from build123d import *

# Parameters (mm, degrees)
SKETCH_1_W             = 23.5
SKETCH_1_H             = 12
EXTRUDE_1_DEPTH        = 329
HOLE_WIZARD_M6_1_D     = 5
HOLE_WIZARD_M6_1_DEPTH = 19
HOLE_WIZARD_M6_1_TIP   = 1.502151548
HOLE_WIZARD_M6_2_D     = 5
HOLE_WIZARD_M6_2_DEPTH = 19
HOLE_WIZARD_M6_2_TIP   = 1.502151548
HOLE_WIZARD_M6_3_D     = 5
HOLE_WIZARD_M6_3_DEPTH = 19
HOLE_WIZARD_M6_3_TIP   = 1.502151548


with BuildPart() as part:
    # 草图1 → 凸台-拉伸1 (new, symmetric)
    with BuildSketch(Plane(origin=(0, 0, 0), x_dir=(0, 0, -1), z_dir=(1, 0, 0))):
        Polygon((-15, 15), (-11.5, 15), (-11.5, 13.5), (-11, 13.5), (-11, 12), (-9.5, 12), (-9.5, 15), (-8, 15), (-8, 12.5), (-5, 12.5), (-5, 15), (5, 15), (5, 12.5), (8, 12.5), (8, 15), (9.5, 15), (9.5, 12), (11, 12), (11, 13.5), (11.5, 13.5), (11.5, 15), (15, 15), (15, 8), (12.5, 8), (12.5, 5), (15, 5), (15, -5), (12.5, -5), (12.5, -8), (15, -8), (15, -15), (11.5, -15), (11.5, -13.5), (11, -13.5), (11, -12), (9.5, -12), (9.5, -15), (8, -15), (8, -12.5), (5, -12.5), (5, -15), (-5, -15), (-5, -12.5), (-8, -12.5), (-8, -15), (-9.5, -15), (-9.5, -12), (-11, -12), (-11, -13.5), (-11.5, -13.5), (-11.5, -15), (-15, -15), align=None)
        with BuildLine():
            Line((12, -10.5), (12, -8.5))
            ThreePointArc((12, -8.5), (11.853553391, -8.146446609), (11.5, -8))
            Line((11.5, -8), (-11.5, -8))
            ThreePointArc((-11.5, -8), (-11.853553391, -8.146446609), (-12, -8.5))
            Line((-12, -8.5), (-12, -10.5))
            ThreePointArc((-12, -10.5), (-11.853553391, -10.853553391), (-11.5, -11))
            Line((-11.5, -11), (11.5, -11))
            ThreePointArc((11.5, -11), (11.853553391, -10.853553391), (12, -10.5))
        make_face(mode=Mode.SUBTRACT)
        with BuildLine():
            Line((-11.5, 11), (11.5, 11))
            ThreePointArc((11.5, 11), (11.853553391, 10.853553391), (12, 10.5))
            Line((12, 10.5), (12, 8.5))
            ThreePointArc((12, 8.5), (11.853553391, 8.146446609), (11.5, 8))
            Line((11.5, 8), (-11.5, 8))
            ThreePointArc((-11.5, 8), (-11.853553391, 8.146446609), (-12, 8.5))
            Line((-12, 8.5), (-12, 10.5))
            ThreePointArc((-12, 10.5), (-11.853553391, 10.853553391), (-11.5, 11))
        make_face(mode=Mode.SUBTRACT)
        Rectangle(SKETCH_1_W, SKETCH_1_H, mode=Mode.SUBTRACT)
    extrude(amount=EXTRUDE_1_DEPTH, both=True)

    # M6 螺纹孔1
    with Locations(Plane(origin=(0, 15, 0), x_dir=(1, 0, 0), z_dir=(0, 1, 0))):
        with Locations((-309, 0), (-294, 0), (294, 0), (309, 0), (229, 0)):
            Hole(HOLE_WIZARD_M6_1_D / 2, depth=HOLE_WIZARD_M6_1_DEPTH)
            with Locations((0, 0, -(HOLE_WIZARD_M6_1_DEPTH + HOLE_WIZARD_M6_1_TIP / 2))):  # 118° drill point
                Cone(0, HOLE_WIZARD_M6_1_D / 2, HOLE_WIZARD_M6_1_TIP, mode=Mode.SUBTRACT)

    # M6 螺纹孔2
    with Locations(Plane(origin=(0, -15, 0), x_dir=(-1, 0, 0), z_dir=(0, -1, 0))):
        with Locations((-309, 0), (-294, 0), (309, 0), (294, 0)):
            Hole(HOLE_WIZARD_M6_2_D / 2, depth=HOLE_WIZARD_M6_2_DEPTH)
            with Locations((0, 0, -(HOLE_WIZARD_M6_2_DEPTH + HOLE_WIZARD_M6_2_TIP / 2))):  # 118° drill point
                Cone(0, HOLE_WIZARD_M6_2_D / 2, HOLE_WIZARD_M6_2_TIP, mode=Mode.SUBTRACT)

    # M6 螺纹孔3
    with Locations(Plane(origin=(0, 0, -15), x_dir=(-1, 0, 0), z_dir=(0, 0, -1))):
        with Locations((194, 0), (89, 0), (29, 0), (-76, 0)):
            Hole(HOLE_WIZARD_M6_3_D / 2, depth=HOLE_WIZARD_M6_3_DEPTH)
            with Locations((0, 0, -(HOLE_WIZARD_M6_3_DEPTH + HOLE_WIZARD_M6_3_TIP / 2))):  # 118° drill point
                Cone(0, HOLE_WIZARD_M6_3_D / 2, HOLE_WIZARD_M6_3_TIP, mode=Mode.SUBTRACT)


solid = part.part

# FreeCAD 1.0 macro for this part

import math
import FreeCAD as App
import Part
import Sketcher
from FreeCAD import Vector
Q = App.Units.Quantity


def add_polygon(sketch, points):
    """Adds a closed chain of lines whose ends are joined by coincident constraints."""
    first, n = sketch.GeometryCount, len(points)
    for a, b in zip(points, points[1:] + points[:1]):
        sketch.addGeometry(Part.LineSegment(App.Vector(*a, 0), App.Vector(*b, 0)), False)
    for i in range(n):
        sketch.addConstraint(Sketcher.Constraint("Coincident", first + i, 2, first + (i + 1) % n, 1))

doc = App.newDocument("Part")
body = doc.addObject("PartDesign::Body", "Body")

sketch1 = body.newObject("Sketcher::SketchObject", "Sketch")
sketch1.AttachmentSupport = (doc.getObject("YZ_Plane"), [""])
sketch1.MapMode = "FlatFace"
add_polygon(sketch1, [(15, 11.5), (15, 15), (-15, 15), (-15, 11.5), (-13.5, 11.5), (-13.5, 11), (-12, 11), (-12, 9.5), (-15, 9.5), (-15, 8), (-12.5, 8), (-12.5, 5), (-15, 5), (-15, -5), (-12.5, -5), (-12.5, -8), (-15, -8), (-15, -9.5), (-12, -9.5), (-12, -11), (-13.5, -11), (-13.5, -11.5), (-15, -11.5), (-15, -15), (-8, -15), (-8, -12.5), (-5, -12.5), (-5, -15), (5, -15), (5, -12.5), (8, -12.5), (8, -15), (15, -15), (15, -11.5), (13.5, -11.5), (13.5, -11), (12, -11), (12, -9.5), (15, -9.5), (15, -8), (12.5, -8), (12.5, -5), (15, -5), (15, 5), (12.5, 5), (12.5, 8), (15, 8), (15, 9.5), (12, 9.5), (12, 11), (13.5, 11), (13.5, 11.5)])
sketch1.addGeometry(Part.ArcOfCircle(Part.Circle(Vector(-10.5, -11.5, 0), Vector(0, 0, 1), 0.5), math.radians(180), math.radians(270)), False)
sketch1.addGeometry(Part.LineSegment(Vector(-11, -11.5, 0), Vector(-11, 11.5, 0)), False)
sketch1.addGeometry(Part.ArcOfCircle(Part.Circle(Vector(-10.5, 11.5, 0), Vector(0, 0, 1), 0.5), math.radians(90), math.radians(180)), False)
sketch1.addGeometry(Part.LineSegment(Vector(-10.5, 12, 0), Vector(-8.5, 12, 0)), False)
sketch1.addGeometry(Part.ArcOfCircle(Part.Circle(Vector(-8.5, 11.5, 0), Vector(0, 0, 1), 0.5), math.radians(0), math.radians(90)), False)
sketch1.addGeometry(Part.LineSegment(Vector(-8, 11.5, 0), Vector(-8, -11.5, 0)), False)
sketch1.addGeometry(Part.ArcOfCircle(Part.Circle(Vector(-8.5, -11.5, 0), Vector(0, 0, 1), 0.5), math.radians(-90), math.radians(0)), False)
sketch1.addGeometry(Part.LineSegment(Vector(-8.5, -12, 0), Vector(-10.5, -12, 0)), False)
add_polygon(sketch1, [(-6, 11.75), (6, 11.75), (6, -11.75), (-6, -11.75)])
sketch1.addGeometry(Part.LineSegment(Vector(11, 11.5, 0), Vector(11, -11.5, 0)), False)
sketch1.addGeometry(Part.ArcOfCircle(Part.Circle(Vector(10.5, -11.5, 0), Vector(0, 0, 1), 0.5), math.radians(-90), math.radians(0)), False)
sketch1.addGeometry(Part.LineSegment(Vector(10.5, -12, 0), Vector(8.5, -12, 0)), False)
sketch1.addGeometry(Part.ArcOfCircle(Part.Circle(Vector(8.5, -11.5, 0), Vector(0, 0, 1), 0.5), math.radians(180), math.radians(270)), False)
sketch1.addGeometry(Part.LineSegment(Vector(8, -11.5, 0), Vector(8, 11.5, 0)), False)
sketch1.addGeometry(Part.ArcOfCircle(Part.Circle(Vector(8.5, 11.5, 0), Vector(0, 0, 1), 0.5), math.radians(90), math.radians(180)), False)
sketch1.addGeometry(Part.LineSegment(Vector(8.5, 12, 0), Vector(10.5, 12, 0)), False)
sketch1.addGeometry(Part.ArcOfCircle(Part.Circle(Vector(10.5, 11.5, 0), Vector(0, 0, 1), 0.5), math.radians(0), math.radians(90)), False)
sketch1.addConstraint([
    Sketcher.Constraint("Tangent", 52, 1, 53, 1),
    Sketcher.Constraint("Tangent", 53, 2, 54, 2),
    Sketcher.Constraint("Tangent", 54, 1, 55, 1),
    Sketcher.Constraint("Tangent", 55, 2, 56, 2),
    Sketcher.Constraint("Tangent", 56, 1, 57, 1),
    Sketcher.Constraint("Tangent", 57, 2, 58, 2),
    Sketcher.Constraint("Tangent", 58, 1, 59, 1),
    Sketcher.Constraint("Tangent", 59, 2, 52, 2),
    Sketcher.Constraint("Tangent", 64, 2, 65, 2),
    Sketcher.Constraint("Tangent", 65, 1, 66, 1),
    Sketcher.Constraint("Tangent", 66, 2, 67, 2),
    Sketcher.Constraint("Tangent", 67, 1, 68, 1),
    Sketcher.Constraint("Tangent", 68, 2, 69, 2),
    Sketcher.Constraint("Tangent", 69, 1, 70, 1),
    Sketcher.Constraint("Tangent", 70, 2, 71, 2),
    Sketcher.Constraint("Tangent", 71, 1, 64, 1),
    Sketcher.Constraint("Vertical", 0),
    Sketcher.Constraint("Horizontal", 1),
    Sketcher.Constraint("Vertical", 2),
    Sketcher.Constraint("Horizontal", 3),
    Sketcher.Constraint("Vertical", 4),
    Sketcher.Constraint("Horizontal", 5),
    Sketcher.Constraint("Vertical", 6),
    Sketcher.Constraint("Horizontal", 7),
    Sketcher.Constraint("Vertical", 8),
    Sketcher.Constraint("Horizontal", 9),
    Sketcher.Constraint("Vertical", 10),
    Sketcher.Constraint("Horizontal", 11),
    Sketcher.Constraint("Vertical", 12),
    Sketcher.Constraint("Horizontal", 13),
    Sketcher.Constraint("Vertical", 14),
    Sketcher.Constraint("Horizontal", 15),
    Sketcher.Constraint("Vertical", 16),
    Sketcher.Constraint("Horizontal", 17),
    Sketcher.Constraint("Vertical", 18),
    Sketcher.Constraint("Horizontal", 19),
    Sketcher.Constraint("Vertical", 20),
    Sketcher.Constraint("Horizontal", 21),
    Sketcher.Constraint("Vertical", 22),
    Sketcher.Constraint("Horizontal", 23),
    Sketcher.Constraint("Vertical", 24),
    Sketcher.Constraint("Horizontal", 25),
    Sketcher.Constraint("Vertical", 26),
    Sketcher.Constraint("Horizontal", 27),
    Sketcher.Constraint("Vertical", 28),
    Sketcher.Constraint("Horizontal", 29),
    Sketcher.Constraint("Vertical", 30),
    Sketcher.Constraint("Horizontal", 31),
    Sketcher.Constraint("Vertical", 32),
    Sketcher.Constraint("Horizontal", 33),
    Sketcher.Constraint("Vertical", 34),
    Sketcher.Constraint("Horizontal", 35),
    Sketcher.Constraint("Vertical", 36),
    Sketcher.Constraint("Horizontal", 37),
    Sketcher.Constraint("Vertical", 38),
    Sketcher.Constraint("Horizontal", 39),
    Sketcher.Constraint("Vertical", 40),
    Sketcher.Constraint("Horizontal", 41),
    Sketcher.Constraint("Vertical", 42),
    Sketcher.Constraint("Horizontal", 43),
    Sketcher.Constraint("Vertical", 44),
    Sketcher.Constraint("Horizontal", 45),
    Sketcher.Constraint("Vertical", 46),
    Sketcher.Constraint("Horizontal", 47),
    Sketcher.Constraint("Vertical", 48),
    Sketcher.Constraint("Horizontal", 49),
    Sketcher.Constraint("Vertical", 50),
    Sketcher.Constraint("Horizontal", 51),
    Sketcher.Constraint("Vertical", 53),
    Sketcher.Constraint("Horizontal", 55),
    Sketcher.Constraint("Vertical", 57),
    Sketcher.Constraint("Horizontal", 59),
    Sketcher.Constraint("Horizontal", 60),
    Sketcher.Constraint("Vertical", 61),
    Sketcher.Constraint("Horizontal", 62),
    Sketcher.Constraint("Vertical", 63),
    Sketcher.Constraint("Vertical", 64),
    Sketcher.Constraint("Horizontal", 66),
    Sketcher.Constraint("Vertical", 68),
    Sketcher.Constraint("Horizontal", 70),
    Sketcher.Constraint("Equal", 52, 54),
    Sketcher.Constraint("Equal", 54, 56),
    Sketcher.Constraint("Equal", 56, 58),
    Sketcher.Constraint("Equal", 58, 65),
    Sketcher.Constraint("Equal", 65, 67),
    Sketcher.Constraint("Equal", 67, 69),
    Sketcher.Constraint("Equal", 69, 71),
    Sketcher.Constraint("Symmetric", 54, 3, 65, 3, -1, 1),
    Sketcher.Constraint("Symmetric", 58, 3, 69, 3, -1, 1),
    Sketcher.Constraint("Symmetric", 0, 2, 22, 2, -1, 1),
    Sketcher.Constraint("Symmetric", 1, 2, 31, 2, -1, 1),
    Sketcher.Constraint("Symmetric", 3, 2, 33, 2, -1, 1),
    Sketcher.Constraint("Symmetric", 5, 2, 35, 2, -1, 1),
    Sketcher.Constraint("Symmetric", 7, 2, 37, 2, -1, 1),
    Sketcher.Constraint("Symmetric", 9, 2, 39, 2, -1, 1),
    Sketcher.Constraint("Symmetric", 11, 2, 41, 2, -1, 1),
    Sketcher.Constraint("Symmetric", 13, 2, 43, 2, -1, 1),
    Sketcher.Constraint("Symmetric", 15, 2, 45, 2, -1, 1),
    Sketcher.Constraint("Symmetric", 17, 2, 47, 2, -1, 1),
    Sketcher.Constraint("Symmetric", 19, 2, 49, 2, -1, 1),
    Sketcher.Constraint("Symmetric", 60, 2, 62, 2, -1, 1),
    Sketcher.Constraint("Symmetric", 25, 2, 28, 2, -2),
    Sketcher.Constraint("Symmetric", 21, 2, 32, 2, -2),
    Sketcher.Constraint("Symmetric", 19, 2, 34, 2, -2),
    Sketcher.Constraint("Symmetric", 17, 2, 36, 2, -2),
    Sketcher.Constraint("Symmetric", 15, 2, 38, 2, -2),
    Sketcher.Constraint("Symmetric", 13, 2, 40, 2, -2),
    Sketcher.Constraint("Horizontal", 58, 3, 65, 3),
    Sketcher.Constraint("Horizontal", 71, 3, 2, 2),
    Sketcher.Constraint("Horizontal", 23, 2, 26, 2),
    Sketcher.Constraint("Horizontal", 3, 2, 50, 2),
    Sketcher.Constraint("Vertical", 2, 2, 7, 2),
    Sketcher.Constraint("Vertical", 8, 2, 11, 2),
    Sketcher.Constraint("Vertical", 24, 2, 56, 1),
    Sketcher.Constraint("Vertical", 30, 2, 67, 1),
    Sketcher.Constraint("Equal", 3, 5),
    Sketcher.Constraint("Equal", 17, 25),
    Sketcher.Constraint("Equal", 51, 6),
    Sketcher.Constraint("Equal", 6, 8),
    Sketcher.Constraint("Equal", 47, 10),
    Sketcher.Constraint("Equal", 27, 12),
    Sketcher.Constraint("Equal", 45, 24),
    Sketcher.Constraint("Radius", 52, Q("0.5 mm")),
    Sketcher.Constraint("DistanceX", 1, 2, 1, 1, Q("30 mm")),
    Sketcher.Constraint("DistanceX", 7, 2, 7, 1, Q("3 mm")),
    Sketcher.Constraint("DistanceX", 23, 1, 23, 2, Q("7 mm")),
    Sketcher.Constraint("DistanceX", 55, 1, 55, 2, Q("2 mm")),
    Sketcher.Constraint("DistanceX", 60, 1, 60, 2, Q("12 mm")),
    Sketcher.Constraint("DistanceY", 53, 1, 53, 2, Q("23 mm")),
    Sketcher.Constraint("DistanceX", 9, 1, 9, 2, Q("2.5 mm")),
    Sketcher.Constraint("DistanceY", 0, 1, 0, 2, Q("3.5 mm")),
    Sketcher.Constraint("DistanceY", 61, 2, 61, 1, Q("23.5 mm")),
])
pad1 = body.newObject("PartDesign::Pad", "Pad")
pad1.Profile = sketch1
pad1.Length = 658
pad1.Midplane = True

sketch2 = body.newObject("Sketcher::SketchObject", "Sketch001")
sketch2.AttachmentSupport = (doc.getObject("XZ_Plane"), [""])
sketch2.MapMode = "FlatFace"
sketch2.AttachmentOffset = App.Placement(Vector(0, 0, -15), App.Rotation())
sketch2.addGeometry([
    Part.Circle(Vector(-309, 0, 0), Vector(0, 0, 1), 2.5),
    Part.Circle(Vector(-294, 0, 0), Vector(0, 0, 1), 2.5),
    Part.Circle(Vector(294, 0, 0), Vector(0, 0, 1), 2.5),
    Part.Circle(Vector(309, 0, 0), Vector(0, 0, 1), 2.5),
    Part.Circle(Vector(229, 0, 0), Vector(0, 0, 1), 2.5),
], False)
sketch2.addConstraint([
    Sketcher.Constraint("Equal", 0, 1),
    Sketcher.Constraint("Equal", 1, 2),
    Sketcher.Constraint("Equal", 2, 3),
    Sketcher.Constraint("Equal", 3, 4),
    Sketcher.Constraint("Symmetric", 1, 3, 2, 3, -1, 1),
    Sketcher.Constraint("Symmetric", 0, 3, 3, 3, -1, 1),
    Sketcher.Constraint("PointOnObject", 0, 3, -1),
    Sketcher.Constraint("PointOnObject", 1, 3, -1),
    Sketcher.Constraint("PointOnObject", 4, 3, -1),
    Sketcher.Constraint("Diameter", 0, Q("5 mm")),
    Sketcher.Constraint("DistanceX", 0, 3, -1, 1, Q("309 mm")),
    Sketcher.Constraint("DistanceX", 1, 3, -1, 1, Q("294 mm")),
    Sketcher.Constraint("DistanceX", -1, 1, 4, 3, Q("229 mm")),
])
doc.recompute()
hole = body.newObject("PartDesign::Hole", "Hole")
hole.Profile = sketch2
hole.ThreadType = "None"
hole.Diameter = 5
hole.DepthType = "Dimension"
hole.Depth = 19
hole.DrillPoint = "Angled"
hole.DrillPointAngle = 118
hole.Reversed = True

sketch3 = body.newObject("Sketcher::SketchObject", "Sketch002")
sketch3.AttachmentSupport = (doc.getObject("XZ_Plane"), [""])
sketch3.MapMode = "FlatFace"
sketch3.AttachmentOffset = App.Placement(Vector(0, 0, 15), App.Rotation())
sketch3.addGeometry([
    Part.Circle(Vector(309, 0, 0), Vector(0, 0, 1), 2.5),
    Part.Circle(Vector(294, 0, 0), Vector(0, 0, 1), 2.5),
    Part.Circle(Vector(-309, 0, 0), Vector(0, 0, 1), 2.5),
    Part.Circle(Vector(-294, 0, 0), Vector(0, 0, 1), 2.5),
], False)
sketch3.addConstraint([
    Sketcher.Constraint("Equal", 0, 1),
    Sketcher.Constraint("Equal", 1, 2),
    Sketcher.Constraint("Equal", 2, 3),
    Sketcher.Constraint("Symmetric", 0, 3, 2, 3, -1, 1),
    Sketcher.Constraint("Symmetric", 1, 3, 3, 3, -1, 1),
    Sketcher.Constraint("PointOnObject", 0, 3, -1),
    Sketcher.Constraint("PointOnObject", 1, 3, -1),
    Sketcher.Constraint("Diameter", 0, Q("5 mm")),
    Sketcher.Constraint("DistanceX", -1, 1, 0, 3, Q("309 mm")),
    Sketcher.Constraint("DistanceX", -1, 1, 1, 3, Q("294 mm")),
])
doc.recompute()
hole2 = body.newObject("PartDesign::Hole", "Hole001")
hole2.Profile = sketch3
hole2.ThreadType = "None"
hole2.Diameter = 5
hole2.DepthType = "Dimension"
hole2.Depth = 19
hole2.DrillPoint = "Angled"
hole2.DrillPointAngle = 118

sketch4 = body.newObject("Sketcher::SketchObject", "Sketch003")
sketch4.AttachmentSupport = (doc.getObject("XY_Plane"), [""])
sketch4.MapMode = "FlatFace"
sketch4.AttachmentOffset = App.Placement(Vector(0, 0, -15), App.Rotation())
sketch4.addGeometry([
    Part.Circle(Vector(-194, 0, 0), Vector(0, 0, 1), 2.5),
    Part.Circle(Vector(-89, 0, 0), Vector(0, 0, 1), 2.5),
    Part.Circle(Vector(-29, 0, 0), Vector(0, 0, 1), 2.5),
    Part.Circle(Vector(76, 0, 0), Vector(0, 0, 1), 2.5),
], False)
sketch4.addConstraint([
    Sketcher.Constraint("Equal", 0, 1),
    Sketcher.Constraint("Equal", 1, 2),
    Sketcher.Constraint("Equal", 2, 3),
    Sketcher.Constraint("PointOnObject", 0, 3, -1),
    Sketcher.Constraint("PointOnObject", 1, 3, -1),
    Sketcher.Constraint("PointOnObject", 2, 3, -1),
    Sketcher.Constraint("PointOnObject", 3, 3, -1),
    Sketcher.Constraint("Diameter", 0, Q("5 mm")),
    Sketcher.Constraint("DistanceX", 0, 3, -1, 1, Q("194 mm")),
    Sketcher.Constraint("DistanceX", 1, 3, -1, 1, Q("89 mm")),
    Sketcher.Constraint("DistanceX", 2, 3, -1, 1, Q("29 mm")),
    Sketcher.Constraint("DistanceX", -1, 1, 3, 3, Q("76 mm")),
])
doc.recompute()
hole3 = body.newObject("PartDesign::Hole", "Hole002")
hole3.Profile = sketch4
hole3.ThreadType = "None"
hole3.Diameter = 5
hole3.DepthType = "Dimension"
hole3.Depth = 19
hole3.DrillPoint = "Angled"
hole3.DrillPointAngle = 118
hole3.Reversed = True

doc.recompute()
